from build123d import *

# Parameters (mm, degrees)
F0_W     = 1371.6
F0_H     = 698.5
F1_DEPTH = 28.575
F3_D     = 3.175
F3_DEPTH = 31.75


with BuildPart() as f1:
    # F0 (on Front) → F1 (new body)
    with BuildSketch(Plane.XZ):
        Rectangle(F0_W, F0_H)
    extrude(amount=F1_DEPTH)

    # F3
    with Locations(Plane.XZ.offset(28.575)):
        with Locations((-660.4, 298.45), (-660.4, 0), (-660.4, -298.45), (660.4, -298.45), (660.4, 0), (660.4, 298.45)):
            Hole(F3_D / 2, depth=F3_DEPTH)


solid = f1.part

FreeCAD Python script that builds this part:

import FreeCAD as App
import Part
import Sketcher
Q = App.Units.Quantity


def add_polygon(sketch, points):
    """Adds a closed chain of lines whose ends are joined by coincident constraints."""
    first, n = sketch.GeometryCount, len(points)
    for a, b in zip(points, points[1:] + points[:1]):
        sketch.addGeometry(Part.LineSegment(App.Vector(*a, 0), App.Vector(*b, 0)), False)
    for i in range(n):
        sketch.addConstraint(Sketcher.Constraint("Coincident", first + i, 2, first + (i + 1) % n, 1))

doc = App.newDocument("Part")
params = doc.addObject("Spreadsheet::Sheet", "Params")
for row, (alias, value) in enumerate([
    ("sketch1_width", "54 in"),
    ("sketch1_height", "27.5 in"),
    ("pad1_length", "1.125 in"),
    ("sketch2_diameter", "0.125 in"),
    ("hole_diameter", "0.125 in"),
    ("hole_depth", "1.25 in"),
], start=1):
    params.set(f"A{row}", alias)
    params.set(f"B{row}", "=" + value)
    params.setAlias(f"B{row}", alias)

body = doc.addObject("PartDesign::Body", "Body")

sketch1 = doc.addObject("Sketcher::SketchObject", "Sketch")
body.addObject(sketch1)
sketch1.AttachmentSupport = (doc.XZ_Plane, [""])
sketch1.MapMode = "FlatFace"
add_polygon(sketch1, [(-685.8, 349.25), (-685.8, -349.25), (685.8, -349.25), (685.8, 349.25)])
sketch1.addConstraint(Sketcher.Constraint("Vertical", 0))
sketch1.addConstraint(Sketcher.Constraint("Horizontal", 1))
sketch1.addConstraint(Sketcher.Constraint("Vertical", 2))
sketch1.addConstraint(Sketcher.Constraint("Horizontal", 3))
sketch1.addConstraint(Sketcher.Constraint("Symmetric", 0, 2, 2, 2, -1, 1))
sketch1.addConstraint(Sketcher.Constraint("DistanceX", 1, 1, 1, 2, Q("54 in")))
sketch1.addConstraint(Sketcher.Constraint("DistanceY", 0, 2, 0, 1, Q("27.5 in")))
sketch1.setExpression("Constraints[9]", "Params.sketch1_width")
sketch1.setExpression("Constraints[10]", "Params.sketch1_height")
pad1 = doc.addObject("PartDesign::Pad", "Pad")
body.addObject(pad1)
pad1.Profile = sketch1
pad1.setExpression("Length", "Params.pad1_length")

sketch2 = doc.addObject("Sketcher::SketchObject", "Sketch001")
body.addObject(sketch2)
sketch2.AttachmentSupport = (doc.XZ_Plane, [""])
sketch2.MapMode = "FlatFace"
sketch2.AttachmentOffset = App.Placement(App.Vector(0, 0, 1.125 * 25.4), App.Rotation())
sketch2.addGeometry(Part.Circle(App.Vector(-660.4, 298.45, 0), App.Vector(0, 0, 1), 1.5875), False)
sketch2.addGeometry(Part.Circle(App.Vector(-660.4, 0, 0), App.Vector(0, 0, 1), 1.5875), False)
sketch2.addGeometry(Part.Circle(App.Vector(-660.4, -298.45, 0), App.Vector(0, 0, 1), 1.5875), False)
sketch2.addGeometry(Part.Circle(App.Vector(660.4, -298.45, 0), App.Vector(0, 0, 1), 1.5875), False)
sketch2.addGeometry(Part.Circle(App.Vector(660.4, 0, 0), App.Vector(0, 0, 1), 1.5875), False)
sketch2.addGeometry(Part.Circle(App.Vector(660.4, 298.45, 0), App.Vector(0, 0, 1), 1.5875), False)
sketch2.addConstraint(Sketcher.Constraint("Equal", 0, 1))
sketch2.addConstraint(Sketcher.Constraint("Equal", 1, 2))
sketch2.addConstraint(Sketcher.Constraint("Equal", 2, 3))
sketch2.addConstraint(Sketcher.Constraint("Equal", 3, 4))
sketch2.addConstraint(Sketcher.Constraint("Equal", 4, 5))
sketch2.addConstraint(Sketcher.Constraint("Symmetric", 0, 3, 3, 3, -1, 1))
sketch2.addConstraint(Sketcher.Constraint("Symmetric", 1, 3, 4, 3, -1, 1))
sketch2.addConstraint(Sketcher.Constraint("Symmetric", 2, 3, 5, 3, -1, 1))
sketch2.addConstraint(Sketcher.Constraint("Symmetric", 2, 3, 3, 3, -2))
sketch2.addConstraint(Sketcher.Constraint("PointOnObject", 1, 3, -1))
sketch2.addConstraint(Sketcher.Constraint("Vertical", 0, 3, 1, 3))
sketch2.addConstraint(Sketcher.Constraint("Diameter", 0, Q("0.125 in")))
sketch2.addConstraint(Sketcher.Constraint("DistanceX", 0, 3, -1, 1, Q("26 in")))
sketch2.addConstraint(Sketcher.Constraint("DistanceY", 2, 3, 0, 3, Q("23.5 in")))
sketch2.setExpression("Constraints[11]", "Params.sketch2_diameter")
doc.recompute()
hole = doc.addObject("PartDesign::Hole", "Hole")
body.addObject(hole)
hole.Profile = sketch2
hole.ThreadType = "None"
hole.setExpression("Diameter", "Params.hole_diameter")
hole.DepthType = "Dimension"
hole.setExpression("Depth", "Params.hole_depth")
hole.DrillPoint = "Flat"

doc.recompute()
